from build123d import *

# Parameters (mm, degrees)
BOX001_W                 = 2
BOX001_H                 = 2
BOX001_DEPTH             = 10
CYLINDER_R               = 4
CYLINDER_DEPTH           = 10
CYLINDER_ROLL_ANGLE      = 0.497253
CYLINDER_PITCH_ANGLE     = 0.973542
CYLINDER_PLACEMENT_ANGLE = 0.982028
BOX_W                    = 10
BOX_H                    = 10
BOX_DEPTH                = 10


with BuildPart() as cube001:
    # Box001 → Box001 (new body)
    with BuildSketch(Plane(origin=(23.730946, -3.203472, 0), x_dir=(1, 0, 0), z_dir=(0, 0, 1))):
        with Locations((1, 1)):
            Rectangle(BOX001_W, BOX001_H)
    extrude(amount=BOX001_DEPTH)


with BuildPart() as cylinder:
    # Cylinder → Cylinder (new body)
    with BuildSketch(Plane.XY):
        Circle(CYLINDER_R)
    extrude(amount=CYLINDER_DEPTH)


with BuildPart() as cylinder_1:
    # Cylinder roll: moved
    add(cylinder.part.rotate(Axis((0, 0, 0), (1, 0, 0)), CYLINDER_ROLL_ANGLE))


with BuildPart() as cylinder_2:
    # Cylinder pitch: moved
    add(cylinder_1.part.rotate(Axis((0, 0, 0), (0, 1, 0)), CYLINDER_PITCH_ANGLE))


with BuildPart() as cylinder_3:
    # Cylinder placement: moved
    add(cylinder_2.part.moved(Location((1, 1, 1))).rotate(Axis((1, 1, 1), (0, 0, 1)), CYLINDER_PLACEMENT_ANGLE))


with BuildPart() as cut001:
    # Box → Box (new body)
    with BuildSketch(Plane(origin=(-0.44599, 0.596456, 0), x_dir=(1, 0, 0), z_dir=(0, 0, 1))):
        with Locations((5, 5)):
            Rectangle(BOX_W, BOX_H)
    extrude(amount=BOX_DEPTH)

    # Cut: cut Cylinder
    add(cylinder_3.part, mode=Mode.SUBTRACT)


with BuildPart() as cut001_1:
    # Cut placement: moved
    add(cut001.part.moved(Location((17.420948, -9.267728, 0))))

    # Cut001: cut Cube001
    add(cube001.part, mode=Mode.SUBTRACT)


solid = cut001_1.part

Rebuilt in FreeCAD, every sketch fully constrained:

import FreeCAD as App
import Part
import Sketcher

doc = App.newDocument("Part")
body = doc.addObject("PartDesign::Body", "Body")

# Sketch on XY plane
sketch1 = body.newObject("Sketcher::SketchObject", "Sketch")
sketch1.AttachmentSupport = (doc.getObject("XY_Plane"), [""])
sketch1.MapMode = "FlatFace"
sketch1.addGeometry(Part.LineSegment(App.Vector(23.730946, -1.203472, 0), App.Vector(23.730946, -3.203472, 0)), False)
sketch1.addGeometry(Part.LineSegment(App.Vector(23.730946, -3.203472, 0), App.Vector(25.730946, -3.203472, 0)), False)
sketch1.addGeometry(Part.LineSegment(App.Vector(25.730946, -3.203472, 0), App.Vector(25.730946, -1.203472, 0)), False)
sketch1.addGeometry(Part.LineSegment(App.Vector(25.730946, -1.203472, 0), App.Vector(23.730946, -1.203472, 0)), False)
sketch1.addConstraint(Sketcher.Constraint("Coincident", 0, 2, 1, 1))
sketch1.addConstraint(Sketcher.Constraint("Coincident", 1, 2, 2, 1))
sketch1.addConstraint(Sketcher.Constraint("Coincident", 2, 2, 3, 1))
sketch1.addConstraint(Sketcher.Constraint("Coincident", 3, 2, 0, 1))
sketch1.addConstraint(Sketcher.Constraint("Vertical", 0))
sketch1.addConstraint(Sketcher.Constraint("Horizontal", 1))
sketch1.addConstraint(Sketcher.Constraint("Vertical", 2))
sketch1.addConstraint(Sketcher.Constraint("Horizontal", 3))
sketch1.addConstraint(Sketcher.Constraint("Equal", 3, 0))
sketch1.addConstraint(Sketcher.Constraint("DistanceX", 1, 1, 1, 2, 2.0))
sketch1.addConstraint(Sketcher.Constraint("DistanceX", -1, 1, 0, 2, 23.730946))
sketch1.addConstraint(Sketcher.Constraint("DistanceY", 0, 2, -1, 1, 3.203472))
pad1 = body.newObject("PartDesign::Pad", "Pad")
pad1.Profile = sketch1
pad1.Length = 10
body2 = doc.addObject("PartDesign::Body", "Body001")

# Sketch on XY plane
sketch2 = body2.newObject("Sketcher::SketchObject", "Sketch001")
sketch2.AttachmentSupport = (doc.getObject("XY_Plane001"), [""])
sketch2.MapMode = "FlatFace"
sketch2.addGeometry(Part.Circle(App.Vector(0, 0, 0), App.Vector(0, 0, 1), 4), False)
sketch2.addConstraint(Sketcher.Constraint("Coincident", 0, 3, -1, 1))
sketch2.addConstraint(Sketcher.Constraint("Diameter", 0, 8.0))
pad2 = body2.newObject("PartDesign::Pad", "Pad001")
pad2.Profile = sketch2
pad2.Length = 10
body3 = doc.addObject("PartDesign::Body", "Body002")
doc.recompute()

body2.Placement = App.Placement(App.Vector(0, 0, 0), App.Rotation(App.Vector(1, 0, 0), 0.497253))
boolean = body3.newObject("PartDesign::Boolean", "Boolean")
boolean.Type = "Fuse"
boolean.addObjects([body2])
body4 = doc.addObject("PartDesign::Body", "Body003")
doc.recompute()

body3.Placement = App.Placement(App.Vector(0, 0, 0), App.Rotation(App.Vector(0, 1, 0), 0.973542))
boolean2 = body4.newObject("PartDesign::Boolean", "Boolean001")
boolean2.Type = "Fuse"
boolean2.addObjects([body3])
body5 = doc.addObject("PartDesign::Body", "Body004")
doc.recompute()

body4.Placement = App.Placement(App.Vector(1, 1, 1), App.Rotation(App.Vector(0, 0, 1), 0.982028))
boolean3 = body5.newObject("PartDesign::Boolean", "Boolean002")
boolean3.Type = "Fuse"
boolean3.addObjects([body4])
body6 = doc.addObject("PartDesign::Body", "Body005")

# Sketch on XY plane
sketch3 = body6.newObject("Sketcher::SketchObject", "Sketch002")
sketch3.AttachmentSupport = (doc.getObject("XY_Plane005"), [""])
sketch3.MapMode = "FlatFace"
sketch3.addGeometry(Part.LineSegment(App.Vector(-0.44599, 10.596456, 0), App.Vector(-0.44599, 0.596456, 0)), False)
sketch3.addGeometry(Part.LineSegment(App.Vector(-0.44599, 0.596456, 0), App.Vector(9.55401, 0.596456, 0)), False)
sketch3.addGeometry(Part.LineSegment(App.Vector(9.55401, 0.596456, 0), App.Vector(9.55401, 10.596456, 0)), False)
sketch3.addGeometry(Part.LineSegment(App.Vector(9.55401, 10.596456, 0), App.Vector(-0.44599, 10.596456, 0)), False)
sketch3.addConstraint(Sketcher.Constraint("Coincident", 0, 2, 1, 1))
sketch3.addConstraint(Sketcher.Constraint("Coincident", 1, 2, 2, 1))
sketch3.addConstraint(Sketcher.Constraint("Coincident", 2, 2, 3, 1))
sketch3.addConstraint(Sketcher.Constraint("Coincident", 3, 2, 0, 1))
sketch3.addConstraint(Sketcher.Constraint("Vertical", 0))
sketch3.addConstraint(Sketcher.Constraint("Horizontal", 1))
sketch3.addConstraint(Sketcher.Constraint("Vertical", 2))
sketch3.addConstraint(Sketcher.Constraint("Horizontal", 3))
sketch3.addConstraint(Sketcher.Constraint("Equal", 3, 0))
sketch3.addConstraint(Sketcher.Constraint("DistanceX", 1, 1, 1, 2, 10.0))
sketch3.addConstraint(Sketcher.Constraint("DistanceX", 0, 2, -1, 1, 0.44599))
sketch3.addConstraint(Sketcher.Constraint("DistanceY", -1, 1, 0, 2, 0.596456))
pad3 = body6.newObject("PartDesign::Pad", "Pad002")
pad3.Profile = sketch3
pad3.Length = 10
doc.recompute()

boolean4 = body6.newObject("PartDesign::Boolean", "Boolean003")
boolean4.Type = "Cut"
boolean4.addObjects([body5])
body7 = doc.addObject("PartDesign::Body", "Body006")
doc.recompute()

body6.Placement = App.Placement(App.Vector(17.420948, -9.267728, 0), App.Rotation(App.Vector(0, 0, 1), 0))
boolean5 = body7.newObject("PartDesign::Boolean", "Boolean004")
boolean5.Type = "Fuse"
boolean5.addObjects([body6])
doc.recompute()

boolean6 = body7.newObject("PartDesign::Boolean", "Boolean005")
boolean6.Type = "Cut"
boolean6.addObjects([body])

doc.recompute()
